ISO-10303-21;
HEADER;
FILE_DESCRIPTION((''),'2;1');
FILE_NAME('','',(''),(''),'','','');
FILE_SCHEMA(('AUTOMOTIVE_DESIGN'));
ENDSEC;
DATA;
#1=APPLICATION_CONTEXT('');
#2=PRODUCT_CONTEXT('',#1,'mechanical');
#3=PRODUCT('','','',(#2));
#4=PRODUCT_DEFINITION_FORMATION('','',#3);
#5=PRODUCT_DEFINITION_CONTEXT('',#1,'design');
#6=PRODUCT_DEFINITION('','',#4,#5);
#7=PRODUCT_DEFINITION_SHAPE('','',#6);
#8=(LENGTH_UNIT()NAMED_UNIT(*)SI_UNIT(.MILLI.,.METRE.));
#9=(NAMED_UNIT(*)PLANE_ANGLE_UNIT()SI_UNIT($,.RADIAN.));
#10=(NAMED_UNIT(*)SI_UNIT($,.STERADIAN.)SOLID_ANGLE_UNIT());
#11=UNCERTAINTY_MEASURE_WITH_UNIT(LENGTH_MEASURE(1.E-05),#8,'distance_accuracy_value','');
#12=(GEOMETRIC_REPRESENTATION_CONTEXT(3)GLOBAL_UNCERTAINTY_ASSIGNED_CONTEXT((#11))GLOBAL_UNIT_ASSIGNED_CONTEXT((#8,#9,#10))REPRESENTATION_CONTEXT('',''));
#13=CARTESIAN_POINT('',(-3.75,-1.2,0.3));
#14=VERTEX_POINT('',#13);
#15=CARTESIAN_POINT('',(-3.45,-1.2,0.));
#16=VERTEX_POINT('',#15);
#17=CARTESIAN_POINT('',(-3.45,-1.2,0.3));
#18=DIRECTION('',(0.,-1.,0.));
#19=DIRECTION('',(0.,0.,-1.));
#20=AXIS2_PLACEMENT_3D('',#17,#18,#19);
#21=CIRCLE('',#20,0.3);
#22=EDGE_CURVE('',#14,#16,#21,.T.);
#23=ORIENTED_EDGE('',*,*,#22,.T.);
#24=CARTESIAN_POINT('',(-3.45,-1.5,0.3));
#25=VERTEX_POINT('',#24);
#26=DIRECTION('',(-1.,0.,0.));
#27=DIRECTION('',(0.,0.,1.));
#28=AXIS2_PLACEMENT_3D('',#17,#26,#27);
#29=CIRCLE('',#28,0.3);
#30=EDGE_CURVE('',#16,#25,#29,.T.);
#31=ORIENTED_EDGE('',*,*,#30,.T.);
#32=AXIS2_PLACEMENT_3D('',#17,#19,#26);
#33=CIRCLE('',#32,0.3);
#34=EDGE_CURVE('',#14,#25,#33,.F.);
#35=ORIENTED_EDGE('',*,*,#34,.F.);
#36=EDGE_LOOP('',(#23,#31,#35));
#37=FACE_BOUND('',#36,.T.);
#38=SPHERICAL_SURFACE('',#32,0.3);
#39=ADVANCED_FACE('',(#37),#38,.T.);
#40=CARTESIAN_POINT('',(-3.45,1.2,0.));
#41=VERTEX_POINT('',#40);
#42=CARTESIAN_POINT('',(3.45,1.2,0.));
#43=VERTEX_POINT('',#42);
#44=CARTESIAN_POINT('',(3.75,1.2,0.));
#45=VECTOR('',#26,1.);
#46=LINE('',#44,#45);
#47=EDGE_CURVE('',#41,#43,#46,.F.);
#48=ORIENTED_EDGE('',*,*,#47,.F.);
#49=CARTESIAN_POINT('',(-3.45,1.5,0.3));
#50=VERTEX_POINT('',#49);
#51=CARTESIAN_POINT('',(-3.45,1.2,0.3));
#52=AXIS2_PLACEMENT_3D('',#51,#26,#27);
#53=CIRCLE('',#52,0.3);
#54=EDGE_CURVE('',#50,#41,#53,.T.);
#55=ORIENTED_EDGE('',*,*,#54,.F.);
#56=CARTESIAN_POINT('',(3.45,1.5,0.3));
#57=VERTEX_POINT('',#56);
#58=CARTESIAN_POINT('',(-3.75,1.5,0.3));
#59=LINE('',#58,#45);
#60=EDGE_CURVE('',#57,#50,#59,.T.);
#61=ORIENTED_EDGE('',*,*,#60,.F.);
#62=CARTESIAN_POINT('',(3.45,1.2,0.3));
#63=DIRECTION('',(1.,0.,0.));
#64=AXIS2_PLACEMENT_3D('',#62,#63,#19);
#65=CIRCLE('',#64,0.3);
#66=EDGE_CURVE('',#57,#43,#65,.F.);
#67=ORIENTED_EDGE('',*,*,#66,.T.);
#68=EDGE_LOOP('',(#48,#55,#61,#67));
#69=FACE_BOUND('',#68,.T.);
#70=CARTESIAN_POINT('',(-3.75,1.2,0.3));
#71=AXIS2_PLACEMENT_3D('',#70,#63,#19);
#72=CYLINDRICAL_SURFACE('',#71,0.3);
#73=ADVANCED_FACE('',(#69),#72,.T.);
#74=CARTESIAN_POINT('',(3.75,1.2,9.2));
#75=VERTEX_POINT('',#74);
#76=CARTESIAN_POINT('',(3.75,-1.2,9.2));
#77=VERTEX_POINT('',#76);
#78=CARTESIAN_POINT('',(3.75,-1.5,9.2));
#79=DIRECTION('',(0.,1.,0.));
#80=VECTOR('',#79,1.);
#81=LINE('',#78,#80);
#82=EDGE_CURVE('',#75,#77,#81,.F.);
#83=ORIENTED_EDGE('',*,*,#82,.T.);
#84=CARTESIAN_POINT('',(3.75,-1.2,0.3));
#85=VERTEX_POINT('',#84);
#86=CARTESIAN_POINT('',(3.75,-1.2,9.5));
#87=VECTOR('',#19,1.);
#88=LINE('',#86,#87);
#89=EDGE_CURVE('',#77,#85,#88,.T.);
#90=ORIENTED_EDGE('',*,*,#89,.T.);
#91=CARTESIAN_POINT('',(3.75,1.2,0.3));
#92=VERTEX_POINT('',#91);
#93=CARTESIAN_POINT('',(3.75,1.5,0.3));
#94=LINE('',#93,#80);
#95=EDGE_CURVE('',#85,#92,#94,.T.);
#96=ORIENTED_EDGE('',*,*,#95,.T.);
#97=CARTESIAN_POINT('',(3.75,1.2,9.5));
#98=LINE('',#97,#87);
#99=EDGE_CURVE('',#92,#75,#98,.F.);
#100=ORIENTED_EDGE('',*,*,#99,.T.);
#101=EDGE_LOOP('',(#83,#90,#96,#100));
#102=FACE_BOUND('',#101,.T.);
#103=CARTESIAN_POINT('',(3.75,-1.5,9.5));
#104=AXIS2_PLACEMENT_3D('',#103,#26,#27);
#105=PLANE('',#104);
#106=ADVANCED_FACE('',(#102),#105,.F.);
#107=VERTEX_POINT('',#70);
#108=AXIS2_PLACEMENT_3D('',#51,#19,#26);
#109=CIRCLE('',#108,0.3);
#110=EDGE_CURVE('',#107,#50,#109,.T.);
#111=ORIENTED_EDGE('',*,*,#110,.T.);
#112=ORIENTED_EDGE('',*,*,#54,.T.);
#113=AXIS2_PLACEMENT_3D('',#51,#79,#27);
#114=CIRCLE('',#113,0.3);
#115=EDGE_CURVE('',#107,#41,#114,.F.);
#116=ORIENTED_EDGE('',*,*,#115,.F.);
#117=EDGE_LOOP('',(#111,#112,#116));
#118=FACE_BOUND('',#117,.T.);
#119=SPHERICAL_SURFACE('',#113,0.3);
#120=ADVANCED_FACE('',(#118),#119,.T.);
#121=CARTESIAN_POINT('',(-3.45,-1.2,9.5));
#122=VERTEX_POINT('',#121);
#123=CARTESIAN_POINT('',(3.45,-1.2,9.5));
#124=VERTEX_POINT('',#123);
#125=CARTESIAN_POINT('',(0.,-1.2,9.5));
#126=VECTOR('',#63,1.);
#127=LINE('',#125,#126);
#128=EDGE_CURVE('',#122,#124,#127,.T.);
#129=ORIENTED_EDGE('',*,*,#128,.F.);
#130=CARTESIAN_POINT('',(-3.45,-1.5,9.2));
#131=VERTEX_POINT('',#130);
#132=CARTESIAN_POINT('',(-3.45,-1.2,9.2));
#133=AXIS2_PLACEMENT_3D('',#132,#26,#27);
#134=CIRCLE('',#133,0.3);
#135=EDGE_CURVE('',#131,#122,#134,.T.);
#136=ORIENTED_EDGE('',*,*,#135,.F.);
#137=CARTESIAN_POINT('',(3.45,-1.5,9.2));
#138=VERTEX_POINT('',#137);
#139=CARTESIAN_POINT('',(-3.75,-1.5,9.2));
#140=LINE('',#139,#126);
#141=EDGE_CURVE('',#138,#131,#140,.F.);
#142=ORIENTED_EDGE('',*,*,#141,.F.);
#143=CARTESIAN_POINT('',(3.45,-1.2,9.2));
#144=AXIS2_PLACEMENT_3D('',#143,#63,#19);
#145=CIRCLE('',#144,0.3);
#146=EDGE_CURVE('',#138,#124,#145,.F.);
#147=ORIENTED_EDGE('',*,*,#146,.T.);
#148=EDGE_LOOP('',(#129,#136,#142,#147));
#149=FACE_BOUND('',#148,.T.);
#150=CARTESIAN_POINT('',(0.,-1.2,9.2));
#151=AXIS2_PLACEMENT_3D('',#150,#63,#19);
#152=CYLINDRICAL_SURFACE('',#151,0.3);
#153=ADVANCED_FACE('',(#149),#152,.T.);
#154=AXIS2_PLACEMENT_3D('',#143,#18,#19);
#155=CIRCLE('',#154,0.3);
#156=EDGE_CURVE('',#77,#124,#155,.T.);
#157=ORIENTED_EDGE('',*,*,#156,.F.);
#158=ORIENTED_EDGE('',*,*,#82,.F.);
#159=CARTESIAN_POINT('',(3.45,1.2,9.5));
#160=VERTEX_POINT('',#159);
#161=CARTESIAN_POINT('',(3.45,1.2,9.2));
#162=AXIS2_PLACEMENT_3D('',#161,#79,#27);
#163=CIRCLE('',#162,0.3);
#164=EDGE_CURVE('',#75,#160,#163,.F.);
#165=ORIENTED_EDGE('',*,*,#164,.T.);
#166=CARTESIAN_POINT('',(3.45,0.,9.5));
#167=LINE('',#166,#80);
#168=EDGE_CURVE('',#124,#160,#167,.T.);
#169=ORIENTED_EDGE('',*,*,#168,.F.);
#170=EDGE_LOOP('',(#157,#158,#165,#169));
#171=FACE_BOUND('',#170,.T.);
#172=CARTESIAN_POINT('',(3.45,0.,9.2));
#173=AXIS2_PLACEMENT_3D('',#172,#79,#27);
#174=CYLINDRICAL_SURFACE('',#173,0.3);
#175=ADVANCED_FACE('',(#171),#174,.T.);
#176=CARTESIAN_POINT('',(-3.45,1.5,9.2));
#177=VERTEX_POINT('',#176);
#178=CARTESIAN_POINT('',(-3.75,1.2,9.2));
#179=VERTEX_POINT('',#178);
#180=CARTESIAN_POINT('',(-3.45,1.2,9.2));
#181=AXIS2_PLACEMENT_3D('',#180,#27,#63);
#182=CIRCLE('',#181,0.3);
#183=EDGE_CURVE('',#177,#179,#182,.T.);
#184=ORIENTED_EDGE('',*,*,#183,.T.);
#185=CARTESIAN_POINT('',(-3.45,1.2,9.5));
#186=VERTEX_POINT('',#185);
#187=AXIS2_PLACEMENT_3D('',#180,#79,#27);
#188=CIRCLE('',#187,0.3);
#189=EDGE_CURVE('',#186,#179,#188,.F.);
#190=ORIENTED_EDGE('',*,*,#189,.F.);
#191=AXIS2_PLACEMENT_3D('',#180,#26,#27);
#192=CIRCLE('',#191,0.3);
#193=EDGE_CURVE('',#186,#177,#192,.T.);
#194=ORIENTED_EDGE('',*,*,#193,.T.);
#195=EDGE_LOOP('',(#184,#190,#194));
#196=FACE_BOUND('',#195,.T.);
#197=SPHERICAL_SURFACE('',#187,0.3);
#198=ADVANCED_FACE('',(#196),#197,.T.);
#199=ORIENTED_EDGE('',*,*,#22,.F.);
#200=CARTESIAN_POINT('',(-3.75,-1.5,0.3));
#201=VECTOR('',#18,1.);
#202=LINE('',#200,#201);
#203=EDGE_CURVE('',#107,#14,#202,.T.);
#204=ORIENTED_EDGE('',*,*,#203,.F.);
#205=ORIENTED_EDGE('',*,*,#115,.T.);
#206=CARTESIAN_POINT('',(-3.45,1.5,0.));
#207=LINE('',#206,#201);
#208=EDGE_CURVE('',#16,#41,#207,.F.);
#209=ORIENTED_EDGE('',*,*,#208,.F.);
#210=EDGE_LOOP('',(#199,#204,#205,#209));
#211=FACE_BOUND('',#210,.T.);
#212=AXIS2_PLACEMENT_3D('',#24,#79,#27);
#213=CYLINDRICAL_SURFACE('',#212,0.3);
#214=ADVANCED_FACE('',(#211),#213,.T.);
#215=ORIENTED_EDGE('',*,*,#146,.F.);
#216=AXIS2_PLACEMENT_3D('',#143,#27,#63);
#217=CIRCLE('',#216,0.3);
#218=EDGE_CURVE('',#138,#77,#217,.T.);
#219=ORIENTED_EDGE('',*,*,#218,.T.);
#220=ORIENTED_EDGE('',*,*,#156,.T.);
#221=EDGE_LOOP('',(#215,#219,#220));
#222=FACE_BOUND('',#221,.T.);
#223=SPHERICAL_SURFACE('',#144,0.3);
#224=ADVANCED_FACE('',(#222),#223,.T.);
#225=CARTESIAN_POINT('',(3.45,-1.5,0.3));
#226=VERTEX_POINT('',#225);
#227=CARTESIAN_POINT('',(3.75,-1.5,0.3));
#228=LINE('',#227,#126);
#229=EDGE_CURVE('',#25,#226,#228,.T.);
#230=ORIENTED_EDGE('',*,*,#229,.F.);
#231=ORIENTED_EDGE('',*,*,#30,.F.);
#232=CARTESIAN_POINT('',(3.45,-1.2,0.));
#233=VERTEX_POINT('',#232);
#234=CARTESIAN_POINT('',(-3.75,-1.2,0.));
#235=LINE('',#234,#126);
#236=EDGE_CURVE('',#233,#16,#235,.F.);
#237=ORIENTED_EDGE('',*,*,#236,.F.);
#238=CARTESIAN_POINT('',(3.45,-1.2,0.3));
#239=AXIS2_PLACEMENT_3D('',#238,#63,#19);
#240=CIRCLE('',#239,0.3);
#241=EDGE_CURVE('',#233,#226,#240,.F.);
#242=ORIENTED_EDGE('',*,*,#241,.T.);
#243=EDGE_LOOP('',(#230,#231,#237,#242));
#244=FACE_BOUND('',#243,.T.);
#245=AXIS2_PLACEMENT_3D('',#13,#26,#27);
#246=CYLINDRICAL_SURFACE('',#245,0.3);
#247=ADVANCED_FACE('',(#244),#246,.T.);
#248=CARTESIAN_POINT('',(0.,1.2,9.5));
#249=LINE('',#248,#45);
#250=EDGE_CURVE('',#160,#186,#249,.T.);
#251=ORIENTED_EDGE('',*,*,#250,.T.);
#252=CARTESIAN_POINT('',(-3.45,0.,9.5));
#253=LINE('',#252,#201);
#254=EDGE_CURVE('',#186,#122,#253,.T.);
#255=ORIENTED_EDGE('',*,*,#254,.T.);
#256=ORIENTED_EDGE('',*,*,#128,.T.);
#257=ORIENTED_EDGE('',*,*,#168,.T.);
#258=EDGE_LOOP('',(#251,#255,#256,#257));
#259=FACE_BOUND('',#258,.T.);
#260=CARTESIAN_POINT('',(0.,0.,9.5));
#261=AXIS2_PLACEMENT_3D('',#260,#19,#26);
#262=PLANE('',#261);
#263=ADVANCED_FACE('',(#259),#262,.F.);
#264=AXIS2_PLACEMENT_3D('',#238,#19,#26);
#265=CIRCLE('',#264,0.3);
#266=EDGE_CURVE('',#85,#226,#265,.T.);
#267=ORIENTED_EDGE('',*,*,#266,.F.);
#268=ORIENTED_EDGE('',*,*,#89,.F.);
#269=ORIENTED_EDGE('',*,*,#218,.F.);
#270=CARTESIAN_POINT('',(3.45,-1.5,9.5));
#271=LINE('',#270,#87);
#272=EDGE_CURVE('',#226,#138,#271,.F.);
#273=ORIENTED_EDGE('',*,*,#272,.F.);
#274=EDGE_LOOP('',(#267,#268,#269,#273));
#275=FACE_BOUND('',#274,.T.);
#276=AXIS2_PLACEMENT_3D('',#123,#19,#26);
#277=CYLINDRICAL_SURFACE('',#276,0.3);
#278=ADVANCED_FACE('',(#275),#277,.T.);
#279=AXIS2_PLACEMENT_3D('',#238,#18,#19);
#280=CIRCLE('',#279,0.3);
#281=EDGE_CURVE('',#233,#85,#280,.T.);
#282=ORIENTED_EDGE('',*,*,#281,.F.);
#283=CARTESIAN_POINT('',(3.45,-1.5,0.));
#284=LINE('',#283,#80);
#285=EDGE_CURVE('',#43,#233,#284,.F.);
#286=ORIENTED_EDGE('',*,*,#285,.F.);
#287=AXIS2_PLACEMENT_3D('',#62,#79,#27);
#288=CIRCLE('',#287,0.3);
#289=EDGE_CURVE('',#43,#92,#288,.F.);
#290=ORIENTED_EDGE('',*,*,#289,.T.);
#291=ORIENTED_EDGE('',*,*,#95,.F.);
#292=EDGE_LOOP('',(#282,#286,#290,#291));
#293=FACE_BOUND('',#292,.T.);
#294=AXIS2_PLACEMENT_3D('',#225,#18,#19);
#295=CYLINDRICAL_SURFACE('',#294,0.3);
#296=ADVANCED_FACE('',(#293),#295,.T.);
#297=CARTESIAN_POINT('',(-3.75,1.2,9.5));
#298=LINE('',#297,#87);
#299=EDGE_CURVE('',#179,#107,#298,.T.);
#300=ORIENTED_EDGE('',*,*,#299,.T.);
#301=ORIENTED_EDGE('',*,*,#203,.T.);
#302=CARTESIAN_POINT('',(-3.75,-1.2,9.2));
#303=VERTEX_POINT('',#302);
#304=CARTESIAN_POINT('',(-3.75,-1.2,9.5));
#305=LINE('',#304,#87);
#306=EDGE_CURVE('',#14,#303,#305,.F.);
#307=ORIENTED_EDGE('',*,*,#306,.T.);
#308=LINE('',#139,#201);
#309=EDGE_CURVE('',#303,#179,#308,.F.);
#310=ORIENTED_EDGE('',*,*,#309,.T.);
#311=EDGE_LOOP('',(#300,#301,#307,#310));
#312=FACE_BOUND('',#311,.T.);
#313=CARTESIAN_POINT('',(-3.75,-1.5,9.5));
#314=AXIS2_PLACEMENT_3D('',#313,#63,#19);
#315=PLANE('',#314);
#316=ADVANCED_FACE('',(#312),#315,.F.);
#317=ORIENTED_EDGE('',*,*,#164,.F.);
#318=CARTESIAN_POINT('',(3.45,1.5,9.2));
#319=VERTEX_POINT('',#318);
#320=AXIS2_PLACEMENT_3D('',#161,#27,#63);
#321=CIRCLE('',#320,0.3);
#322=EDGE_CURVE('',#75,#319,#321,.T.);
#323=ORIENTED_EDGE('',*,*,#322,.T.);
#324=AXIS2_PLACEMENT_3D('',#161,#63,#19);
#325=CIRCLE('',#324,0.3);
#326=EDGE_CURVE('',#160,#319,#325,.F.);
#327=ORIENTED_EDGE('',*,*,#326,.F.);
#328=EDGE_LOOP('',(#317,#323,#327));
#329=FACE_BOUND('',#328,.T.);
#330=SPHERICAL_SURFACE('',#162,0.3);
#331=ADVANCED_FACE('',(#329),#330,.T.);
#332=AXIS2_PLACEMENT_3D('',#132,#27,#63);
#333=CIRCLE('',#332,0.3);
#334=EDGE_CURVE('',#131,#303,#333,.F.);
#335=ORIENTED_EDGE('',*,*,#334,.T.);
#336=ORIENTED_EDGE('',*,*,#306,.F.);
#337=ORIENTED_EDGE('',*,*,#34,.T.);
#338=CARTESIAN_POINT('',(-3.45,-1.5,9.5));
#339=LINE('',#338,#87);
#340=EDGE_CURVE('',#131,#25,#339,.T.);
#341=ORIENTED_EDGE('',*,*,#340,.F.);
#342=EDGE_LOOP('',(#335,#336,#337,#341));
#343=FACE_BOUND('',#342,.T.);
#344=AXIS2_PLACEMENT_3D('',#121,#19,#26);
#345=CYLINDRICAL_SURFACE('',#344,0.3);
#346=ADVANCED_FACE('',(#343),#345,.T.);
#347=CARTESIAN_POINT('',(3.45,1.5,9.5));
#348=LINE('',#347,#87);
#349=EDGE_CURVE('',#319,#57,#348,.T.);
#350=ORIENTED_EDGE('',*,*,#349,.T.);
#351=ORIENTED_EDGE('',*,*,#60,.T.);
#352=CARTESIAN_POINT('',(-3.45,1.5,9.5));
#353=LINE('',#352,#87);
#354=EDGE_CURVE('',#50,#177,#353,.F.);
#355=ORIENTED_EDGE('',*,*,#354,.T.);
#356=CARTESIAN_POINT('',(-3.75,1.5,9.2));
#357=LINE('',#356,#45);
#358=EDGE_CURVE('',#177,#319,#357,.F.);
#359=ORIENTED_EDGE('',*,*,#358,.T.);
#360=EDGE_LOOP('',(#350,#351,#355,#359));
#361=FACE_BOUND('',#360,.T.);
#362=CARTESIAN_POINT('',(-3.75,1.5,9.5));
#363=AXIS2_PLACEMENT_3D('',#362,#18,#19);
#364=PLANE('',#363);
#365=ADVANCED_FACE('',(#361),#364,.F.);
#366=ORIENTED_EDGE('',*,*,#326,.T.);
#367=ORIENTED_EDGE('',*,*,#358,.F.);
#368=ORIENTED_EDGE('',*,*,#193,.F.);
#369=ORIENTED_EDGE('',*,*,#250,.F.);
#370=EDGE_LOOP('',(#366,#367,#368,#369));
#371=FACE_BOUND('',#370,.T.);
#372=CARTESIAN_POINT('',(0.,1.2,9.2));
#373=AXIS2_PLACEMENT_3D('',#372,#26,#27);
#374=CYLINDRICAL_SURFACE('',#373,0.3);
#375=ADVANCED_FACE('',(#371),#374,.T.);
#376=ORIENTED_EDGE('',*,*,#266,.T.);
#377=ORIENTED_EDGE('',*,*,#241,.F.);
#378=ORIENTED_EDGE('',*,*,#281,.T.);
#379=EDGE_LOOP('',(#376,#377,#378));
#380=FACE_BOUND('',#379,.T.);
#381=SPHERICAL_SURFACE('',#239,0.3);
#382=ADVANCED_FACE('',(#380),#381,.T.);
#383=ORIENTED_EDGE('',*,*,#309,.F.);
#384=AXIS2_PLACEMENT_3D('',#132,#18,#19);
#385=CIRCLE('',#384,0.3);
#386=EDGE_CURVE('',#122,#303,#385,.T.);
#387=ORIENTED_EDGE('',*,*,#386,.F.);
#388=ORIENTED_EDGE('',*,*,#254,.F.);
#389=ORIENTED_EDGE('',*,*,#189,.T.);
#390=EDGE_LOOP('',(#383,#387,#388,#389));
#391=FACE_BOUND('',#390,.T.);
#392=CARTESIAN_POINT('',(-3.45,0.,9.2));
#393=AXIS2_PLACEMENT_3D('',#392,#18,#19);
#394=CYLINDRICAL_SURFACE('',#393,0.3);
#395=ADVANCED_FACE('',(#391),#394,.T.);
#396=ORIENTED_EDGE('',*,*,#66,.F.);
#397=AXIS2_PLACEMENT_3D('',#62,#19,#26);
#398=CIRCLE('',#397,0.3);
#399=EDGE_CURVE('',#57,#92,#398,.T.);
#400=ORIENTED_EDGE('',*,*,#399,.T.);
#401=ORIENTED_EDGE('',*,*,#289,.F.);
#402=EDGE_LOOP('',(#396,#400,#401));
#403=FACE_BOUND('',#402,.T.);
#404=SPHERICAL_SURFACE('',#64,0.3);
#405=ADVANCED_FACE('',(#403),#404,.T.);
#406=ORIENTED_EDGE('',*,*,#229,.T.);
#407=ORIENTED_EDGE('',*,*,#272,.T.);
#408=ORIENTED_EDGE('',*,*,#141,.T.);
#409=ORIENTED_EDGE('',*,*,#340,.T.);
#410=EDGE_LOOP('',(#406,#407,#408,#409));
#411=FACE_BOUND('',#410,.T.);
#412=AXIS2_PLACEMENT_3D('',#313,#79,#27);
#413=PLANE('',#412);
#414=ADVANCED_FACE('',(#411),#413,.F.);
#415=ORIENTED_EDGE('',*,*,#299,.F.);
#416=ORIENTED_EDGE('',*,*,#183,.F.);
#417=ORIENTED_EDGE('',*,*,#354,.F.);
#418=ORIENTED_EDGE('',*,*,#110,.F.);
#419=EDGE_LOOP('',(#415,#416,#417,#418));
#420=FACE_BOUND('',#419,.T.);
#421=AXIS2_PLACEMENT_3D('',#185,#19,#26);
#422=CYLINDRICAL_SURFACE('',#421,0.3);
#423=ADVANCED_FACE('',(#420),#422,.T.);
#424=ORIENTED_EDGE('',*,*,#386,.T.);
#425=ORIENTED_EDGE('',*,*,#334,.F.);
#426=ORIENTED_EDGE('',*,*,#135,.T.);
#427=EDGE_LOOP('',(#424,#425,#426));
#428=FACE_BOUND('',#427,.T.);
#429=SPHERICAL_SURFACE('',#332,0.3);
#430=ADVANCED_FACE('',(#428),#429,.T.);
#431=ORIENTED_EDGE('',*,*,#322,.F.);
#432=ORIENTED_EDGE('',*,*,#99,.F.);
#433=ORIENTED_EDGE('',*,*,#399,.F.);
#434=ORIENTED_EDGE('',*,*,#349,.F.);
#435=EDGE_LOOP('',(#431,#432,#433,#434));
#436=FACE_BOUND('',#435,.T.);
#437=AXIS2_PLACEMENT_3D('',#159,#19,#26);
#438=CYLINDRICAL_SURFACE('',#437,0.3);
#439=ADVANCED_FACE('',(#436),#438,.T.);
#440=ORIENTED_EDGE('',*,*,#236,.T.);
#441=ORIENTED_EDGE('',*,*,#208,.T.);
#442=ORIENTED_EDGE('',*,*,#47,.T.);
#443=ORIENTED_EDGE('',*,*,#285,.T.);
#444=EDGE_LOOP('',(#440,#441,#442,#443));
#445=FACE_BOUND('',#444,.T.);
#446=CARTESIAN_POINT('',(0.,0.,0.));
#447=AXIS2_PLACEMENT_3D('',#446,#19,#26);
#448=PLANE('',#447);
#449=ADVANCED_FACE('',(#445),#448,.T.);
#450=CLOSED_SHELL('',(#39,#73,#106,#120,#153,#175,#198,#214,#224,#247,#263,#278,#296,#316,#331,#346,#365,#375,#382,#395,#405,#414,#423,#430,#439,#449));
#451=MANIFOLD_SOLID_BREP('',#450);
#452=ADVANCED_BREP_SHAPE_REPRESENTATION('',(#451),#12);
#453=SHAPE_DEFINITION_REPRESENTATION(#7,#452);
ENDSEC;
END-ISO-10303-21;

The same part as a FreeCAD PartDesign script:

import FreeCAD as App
import Part
import Sketcher

V = App.Vector
Q = App.Units.Quantity

doc = App.newDocument("Part")
body = doc.addObject("PartDesign::Body", "Body")

sketch1 = body.newObject("Sketcher::SketchObject", "Sketch")
sketch1.AttachmentSupport = (doc.getObject("XY_Plane"), [""])
sketch1.MapMode = "FlatFace"
sketch1.addGeometry([
    Part.LineSegment(V(-3.8, 1.5, 0), V(-3.8, -1.5, 0)),
    Part.LineSegment(V(-3.8, -1.5, 0), V(3.8, -1.5, 0)),
    Part.LineSegment(V(3.8, -1.5, 0), V(3.8, 1.5, 0)),
    Part.LineSegment(V(3.8, 1.5, 0), V(-3.8, 1.5, 0)),
], False)
sketch1.addConstraint([
    Sketcher.Constraint("Coincident", 0, 2, 1, 1),
    Sketcher.Constraint("Coincident", 1, 2, 2, 1),
    Sketcher.Constraint("Coincident", 2, 2, 3, 1),
    Sketcher.Constraint("Coincident", 3, 2, 0, 1),
    Sketcher.Constraint("Vertical", 0),
    Sketcher.Constraint("Horizontal", 1),
    Sketcher.Constraint("Vertical", 2),
    Sketcher.Constraint("Horizontal", 3),
    Sketcher.Constraint("Symmetric", 0, 2, 2, 2, -1, 1),
    Sketcher.Constraint("DistanceY", 0, 2, 0, 1, Q("3 mm")),
    Sketcher.Constraint("DistanceX", 1, 1, 1, 2, Q("7.5 mm")),
])
pad1 = body.newObject("PartDesign::Pad", "Pad")
pad1.Profile = sketch1
pad1.Length = 9.5
doc.recompute()

fillet = body.newObject("PartDesign::Fillet", "Fillet")
fillet.Base = (pad1, ["Edge1"])
fillet.UseAllEdges = True
fillet.Radius = 0.3

doc.recompute()
